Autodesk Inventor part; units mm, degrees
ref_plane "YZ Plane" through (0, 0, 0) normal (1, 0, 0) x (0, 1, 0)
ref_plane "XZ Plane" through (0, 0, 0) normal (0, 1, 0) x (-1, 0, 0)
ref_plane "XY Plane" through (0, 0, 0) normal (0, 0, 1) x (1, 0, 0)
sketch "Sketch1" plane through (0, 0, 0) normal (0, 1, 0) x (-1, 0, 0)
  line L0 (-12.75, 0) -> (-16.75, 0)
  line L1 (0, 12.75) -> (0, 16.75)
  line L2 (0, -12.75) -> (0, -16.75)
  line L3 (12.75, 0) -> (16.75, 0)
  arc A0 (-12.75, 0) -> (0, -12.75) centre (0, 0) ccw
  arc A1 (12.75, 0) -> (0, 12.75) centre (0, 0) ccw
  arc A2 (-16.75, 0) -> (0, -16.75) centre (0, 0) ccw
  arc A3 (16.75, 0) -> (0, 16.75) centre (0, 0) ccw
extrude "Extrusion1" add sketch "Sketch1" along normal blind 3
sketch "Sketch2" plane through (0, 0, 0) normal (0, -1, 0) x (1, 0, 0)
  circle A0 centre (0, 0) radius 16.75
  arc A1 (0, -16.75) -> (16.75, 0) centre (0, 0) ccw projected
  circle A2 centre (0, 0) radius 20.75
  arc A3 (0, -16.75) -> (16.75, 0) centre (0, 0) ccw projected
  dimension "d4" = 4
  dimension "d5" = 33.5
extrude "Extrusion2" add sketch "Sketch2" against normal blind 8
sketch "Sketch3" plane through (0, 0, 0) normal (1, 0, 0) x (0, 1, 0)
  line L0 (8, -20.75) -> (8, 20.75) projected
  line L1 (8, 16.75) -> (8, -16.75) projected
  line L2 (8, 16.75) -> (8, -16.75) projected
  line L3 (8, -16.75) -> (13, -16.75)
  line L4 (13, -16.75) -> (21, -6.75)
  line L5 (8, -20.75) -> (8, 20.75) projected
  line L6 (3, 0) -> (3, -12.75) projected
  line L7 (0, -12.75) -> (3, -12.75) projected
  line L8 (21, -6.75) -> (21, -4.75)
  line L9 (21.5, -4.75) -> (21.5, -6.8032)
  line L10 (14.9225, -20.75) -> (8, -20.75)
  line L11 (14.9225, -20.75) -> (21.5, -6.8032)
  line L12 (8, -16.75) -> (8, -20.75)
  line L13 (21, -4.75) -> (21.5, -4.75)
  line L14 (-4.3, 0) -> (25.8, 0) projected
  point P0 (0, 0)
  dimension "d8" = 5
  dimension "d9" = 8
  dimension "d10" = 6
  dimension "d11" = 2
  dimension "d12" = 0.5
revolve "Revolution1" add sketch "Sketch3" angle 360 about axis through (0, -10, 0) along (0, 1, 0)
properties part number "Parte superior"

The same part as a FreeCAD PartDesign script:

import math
import FreeCAD as App
import Part
import Sketcher
Q = App.Units.Quantity

doc = App.newDocument("Part")
body = doc.addObject("PartDesign::Body", "Body")
body.AllowCompound = True

sketch1 = body.newObject("Sketcher::SketchObject", "Sketch")
sketch1.AttachmentSupport = (doc.getObject("XZ_Plane"), [""])
sketch1.MapMode = "FlatFace"
sketch1.addGeometry([
    Part.ArcOfCircle(Part.Circle(App.Vector(0, 0, 0), App.Vector(0, 0, 1), 12.8), math.radians(-90), math.radians(0)),
    Part.LineSegment(App.Vector(12.8, 0, 0), App.Vector(16.8, 0, 0)),
    Part.ArcOfCircle(Part.Circle(App.Vector(0, 0, 0), App.Vector(0, 0, 1), 16.8), math.radians(-90), math.radians(0)),
    Part.LineSegment(App.Vector(0, -16.8, 0), App.Vector(0, -12.8, 0)),
    Part.LineSegment(App.Vector(0, 16.8, 0), App.Vector(0, 12.8, 0)),
    Part.ArcOfCircle(Part.Circle(App.Vector(0, 0, 0), App.Vector(0, 0, 1), 12.8), math.radians(90), math.radians(180)),
    Part.LineSegment(App.Vector(-12.8, 0, 0), App.Vector(-16.8, 0, 0)),
    Part.ArcOfCircle(Part.Circle(App.Vector(0, 0, 0), App.Vector(0, 0, 1), 16.8), math.radians(90), math.radians(180)),
], False)
sketch1.addConstraint([
    Sketcher.Constraint("Coincident", 0, 2, 1, 1),
    Sketcher.Constraint("Coincident", 1, 2, 2, 2),
    Sketcher.Constraint("Coincident", 2, 1, 3, 1),
    Sketcher.Constraint("Coincident", 3, 2, 0, 1),
    Sketcher.Constraint("Coincident", 4, 2, 5, 1),
    Sketcher.Constraint("Coincident", 5, 2, 6, 1),
    Sketcher.Constraint("Coincident", 6, 2, 7, 2),
    Sketcher.Constraint("Coincident", 7, 1, 4, 1),
    Sketcher.Constraint("Horizontal", 1),
    Sketcher.Constraint("Vertical", 3),
    Sketcher.Constraint("Vertical", 4),
    Sketcher.Constraint("Horizontal", 6),
    Sketcher.Constraint("Coincident", 0, 3, -1, 1),
    Sketcher.Constraint("Coincident", 2, 3, -1, 1),
    Sketcher.Constraint("Coincident", 5, 3, -1, 1),
    Sketcher.Constraint("Coincident", 7, 3, -1, 1),
    Sketcher.Constraint("Equal", 0, 5),
    Sketcher.Constraint("Equal", 2, 7),
    Sketcher.Constraint("PointOnObject", 0, 2, -1),
    Sketcher.Constraint("PointOnObject", 2, 1, -2),
    Sketcher.Constraint("PointOnObject", 4, 2, -2),
    Sketcher.Constraint("PointOnObject", 5, 2, -1),
    Sketcher.Constraint("DistanceX", 1, 1, 1, 2, 4.0),
    Sketcher.Constraint("Radius", 0, 12.75),
])
pad1 = body.newObject("PartDesign::Pad", "Pad")
pad1.Profile = sketch1
pad1.Length = 3
pad1.Reversed = True

sketch2 = body.newObject("Sketcher::SketchObject", "Sketch001")
sketch2.AttachmentSupport = (doc.getObject("XZ_Plane"), [""])
sketch2.MapMode = "FlatFace"
sketch2.addGeometry([
    Part.Circle(App.Vector(0, 0, 0), App.Vector(0, 0, 1), 21),
    Part.Circle(App.Vector(0, 0, 0), App.Vector(0, 0, 1), 17),
], False)
sketch2.addConstraint([
    Sketcher.Constraint("Coincident", 0, 3, -1, 1),
    Sketcher.Constraint("Coincident", 1, 3, -1, 1),
    Sketcher.Constraint("Diameter", 1, 33.5),
    Sketcher.Constraint("Diameter", 0, 41.5),
])
pad2 = body.newObject("PartDesign::Pad", "Pad001")
pad2.Profile = sketch2
pad2.Length = 8
pad2.Reversed = True

sketch3 = body.newObject("Sketcher::SketchObject", "Sketch002")
sketch3.AttachmentSupport = (doc.getObject("YZ_Plane"), [""])
sketch3.MapMode = "FlatFace"
sketch3.addGeometry([
    Part.LineSegment(App.Vector(8, -16.8, 0), App.Vector(8, -20.8, 0)),
    Part.LineSegment(App.Vector(8, -20.8, 0), App.Vector(14.9, -20.8, 0)),
    Part.LineSegment(App.Vector(14.9, -20.8, 0), App.Vector(21.5, -6.8, 0)),
    Part.LineSegment(App.Vector(21.5, -6.8, 0), App.Vector(21.5, -4.8, 0)),
    Part.LineSegment(App.Vector(21.5, -4.8, 0), App.Vector(21, -4.8, 0)),
    Part.LineSegment(App.Vector(21, -4.8, 0), App.Vector(21, -6.8, 0)),
    Part.LineSegment(App.Vector(21, -6.8, 0), App.Vector(13, -16.8, 0)),
    Part.LineSegment(App.Vector(13, -16.8, 0), App.Vector(8, -16.8, 0)),
], False)
sketch3.addConstraint([
    Sketcher.Constraint("Coincident", 0, 2, 1, 1),
    Sketcher.Constraint("Coincident", 1, 2, 2, 1),
    Sketcher.Constraint("Coincident", 2, 2, 3, 1),
    Sketcher.Constraint("Coincident", 3, 2, 4, 1),
    Sketcher.Constraint("Coincident", 4, 2, 5, 1),
    Sketcher.Constraint("Coincident", 5, 2, 6, 1),
    Sketcher.Constraint("Coincident", 6, 2, 7, 1),
    Sketcher.Constraint("Coincident", 7, 2, 0, 1),
    Sketcher.Constraint("Vertical", 0),
    Sketcher.Constraint("Horizontal", 1),
    Sketcher.Constraint("Vertical", 3),
    Sketcher.Constraint("Horizontal", 4),
    Sketcher.Constraint("Vertical", 5),
    Sketcher.Constraint("Horizontal", 7),
    Sketcher.Constraint("DistanceX", 7, 2, 7, 1, 5.0),
    Sketcher.Constraint("DistanceY", 5, 2, 5, 1, 2.0),
    Sketcher.Constraint("DistanceX", 4, 2, 4, 1, 0.5),
    Sketcher.Constraint("DistanceX", -1, 1, 0, 2, 8.0),
    Sketcher.Constraint("DistanceX", 6, 2, 5, 2, 8.0),
    Sketcher.Constraint("DistanceY", 0, 2, 0, 1, 4.0),
    Sketcher.Constraint("DistanceY", 1, 2, 3, 2, 16.0),
    Sketcher.Constraint("Angle", 2, Q("64.7508 deg")),
    Sketcher.Constraint("Distance", 2, 15.42),
    Sketcher.Constraint("DistanceY", 0, 2, -1, 1, 20.75),
])
revolution = body.newObject("PartDesign::Revolution", "Revolution")
revolution.Profile = sketch3
revolution.ReferenceAxis = (sketch3, ["H_Axis"])
revolution.Angle = 360

doc.recompute()
